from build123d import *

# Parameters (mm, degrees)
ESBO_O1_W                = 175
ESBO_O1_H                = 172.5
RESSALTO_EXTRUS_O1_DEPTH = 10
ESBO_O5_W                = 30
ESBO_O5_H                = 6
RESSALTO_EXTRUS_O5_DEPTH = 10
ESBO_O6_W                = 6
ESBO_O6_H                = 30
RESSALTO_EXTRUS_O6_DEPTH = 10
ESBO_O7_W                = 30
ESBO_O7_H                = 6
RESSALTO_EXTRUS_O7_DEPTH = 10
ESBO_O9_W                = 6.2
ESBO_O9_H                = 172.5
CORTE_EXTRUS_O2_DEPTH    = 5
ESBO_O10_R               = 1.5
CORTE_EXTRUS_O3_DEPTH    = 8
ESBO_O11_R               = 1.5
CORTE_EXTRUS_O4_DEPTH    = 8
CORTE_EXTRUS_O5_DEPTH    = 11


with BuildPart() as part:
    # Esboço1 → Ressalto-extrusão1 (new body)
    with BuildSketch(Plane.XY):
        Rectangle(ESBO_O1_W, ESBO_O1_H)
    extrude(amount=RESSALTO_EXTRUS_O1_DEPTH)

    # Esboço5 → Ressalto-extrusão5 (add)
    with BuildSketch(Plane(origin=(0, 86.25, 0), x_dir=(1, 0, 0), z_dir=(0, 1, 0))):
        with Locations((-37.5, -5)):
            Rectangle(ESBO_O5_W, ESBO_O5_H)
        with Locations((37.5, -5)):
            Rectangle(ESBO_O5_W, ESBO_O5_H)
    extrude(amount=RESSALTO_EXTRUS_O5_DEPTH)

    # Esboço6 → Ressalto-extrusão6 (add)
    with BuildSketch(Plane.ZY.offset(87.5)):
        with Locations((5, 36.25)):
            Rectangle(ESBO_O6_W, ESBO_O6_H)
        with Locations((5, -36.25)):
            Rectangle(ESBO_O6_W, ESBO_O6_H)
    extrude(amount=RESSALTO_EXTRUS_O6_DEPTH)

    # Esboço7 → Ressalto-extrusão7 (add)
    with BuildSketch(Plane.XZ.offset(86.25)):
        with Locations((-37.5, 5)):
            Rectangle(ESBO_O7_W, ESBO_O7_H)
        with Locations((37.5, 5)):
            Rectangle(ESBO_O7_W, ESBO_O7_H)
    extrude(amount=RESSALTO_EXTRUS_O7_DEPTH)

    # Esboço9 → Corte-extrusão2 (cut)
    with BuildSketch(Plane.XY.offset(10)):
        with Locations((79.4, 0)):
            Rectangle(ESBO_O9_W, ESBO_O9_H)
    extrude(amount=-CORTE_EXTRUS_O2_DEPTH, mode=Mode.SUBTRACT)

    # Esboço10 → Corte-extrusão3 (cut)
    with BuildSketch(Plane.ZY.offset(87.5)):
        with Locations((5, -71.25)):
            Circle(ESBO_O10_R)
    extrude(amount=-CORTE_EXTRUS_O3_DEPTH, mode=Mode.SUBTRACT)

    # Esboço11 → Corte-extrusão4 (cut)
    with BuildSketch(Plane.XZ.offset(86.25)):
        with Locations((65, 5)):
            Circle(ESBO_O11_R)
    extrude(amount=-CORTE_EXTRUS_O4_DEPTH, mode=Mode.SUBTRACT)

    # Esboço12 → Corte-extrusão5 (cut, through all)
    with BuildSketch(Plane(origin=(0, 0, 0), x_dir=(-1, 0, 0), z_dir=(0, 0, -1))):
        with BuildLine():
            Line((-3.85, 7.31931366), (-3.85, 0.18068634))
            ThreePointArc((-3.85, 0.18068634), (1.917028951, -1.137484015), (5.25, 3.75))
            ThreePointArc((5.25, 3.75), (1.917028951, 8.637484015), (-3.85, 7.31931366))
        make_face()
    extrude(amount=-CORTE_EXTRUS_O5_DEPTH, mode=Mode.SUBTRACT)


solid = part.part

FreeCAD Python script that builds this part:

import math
import FreeCAD as App
import Part
import Sketcher

V = App.Vector
Q = App.Units.Quantity


def add_polygon(sketch, points):
    """Adds a closed chain of lines whose ends are joined by coincident constraints."""
    first, n = sketch.GeometryCount, len(points)
    for a, b in zip(points, points[1:] + points[:1]):
        sketch.addGeometry(Part.LineSegment(App.Vector(*a, 0), App.Vector(*b, 0)), False)
    for i in range(n):
        sketch.addConstraint(Sketcher.Constraint("Coincident", first + i, 2, first + (i + 1) % n, 1))

doc = App.newDocument("Part")
params = doc.addObject("Spreadsheet::Sheet", "Params")
for row, (alias, value) in enumerate([
    ("sketch1_width", "175 mm"),
    ("sketch1_height", "172.5 mm"),
    ("pad1_length", "10 mm"),
    ("sketch2_width", "30 mm"),
    ("sketch2_height", "6 mm"),
    ("pad2_length", "10 mm"),
    ("sketch3_width", "30 mm"),
    ("sketch3_height", "6 mm"),
    ("pad3_length", "10 mm"),
    ("sketch4_width", "30 mm"),
    ("sketch4_height", "6 mm"),
    ("pad4_length", "10 mm"),
    ("sketch5_width", "6.2 mm"),
    ("sketch5_height", "172.5 mm"),
    ("pocket1_length", "5 mm"),
    ("sketch6_diameter", "3 mm"),
    ("pocket2_length", "8 mm"),
    ("sketch7_diameter", "3 mm"),
    ("pocket3_length", "8 mm"),
    ("sketch8_radius", "5.25 mm"),
], start=1):
    params.set(f"A{row}", alias)
    params.set(f"B{row}", "=" + value)
    params.setAlias(f"B{row}", alias)

body = doc.addObject("PartDesign::Body", "Body")

# Sketch on XY plane
sketch1 = body.newObject("Sketcher::SketchObject", "Sketch")
sketch1.AttachmentSupport = (doc.getObject("XY_Plane"), [""])
sketch1.MapMode = "FlatFace"
add_polygon(sketch1, [(-87.5, 86.25), (-87.5, -86.25), (87.5, -86.25), (87.5, 86.25)])  # lines 0-3
sketch1.addConstraint(Sketcher.Constraint("Vertical", 0))
sketch1.addConstraint(Sketcher.Constraint("Horizontal", 1))
sketch1.addConstraint(Sketcher.Constraint("Vertical", 2))
sketch1.addConstraint(Sketcher.Constraint("Horizontal", 3))
sketch1.addConstraint(Sketcher.Constraint("Symmetric", 0, 2, 2, 2, -1, 1))
sketch1.addConstraint(Sketcher.Constraint("DistanceX", 1, 1, 1, 2, Q("175 mm")))
sketch1.addConstraint(Sketcher.Constraint("DistanceY", 0, 2, 0, 1, Q("172.5 mm")))
sketch1.setExpression("Constraints[9]", "Params.sketch1_width")
sketch1.setExpression("Constraints[10]", "Params.sketch1_height")
pad1 = body.newObject("PartDesign::Pad", "Pad")
pad1.Profile = sketch1
pad1.setExpression("Length", "Params.pad1_length")

# Sketch on XZ plane
sketch2 = body.newObject("Sketcher::SketchObject", "Sketch001")
sketch2.AttachmentSupport = (doc.getObject("XZ_Plane"), [""])
sketch2.MapMode = "FlatFace"
sketch2.AttachmentOffset = App.Placement(V(0, 0, -86.25), App.Rotation())
add_polygon(sketch2, [(-52.5, 2), (-52.5, 8), (-22.5, 8), (-22.5, 2)])  # lines 0-3
add_polygon(sketch2, [(22.5, 2), (22.5, 8), (52.5, 8), (52.5, 2)])  # lines 4-7
sketch2.addConstraint(Sketcher.Constraint("Vertical", 0))
sketch2.addConstraint(Sketcher.Constraint("Horizontal", 1))
sketch2.addConstraint(Sketcher.Constraint("Vertical", 2))
sketch2.addConstraint(Sketcher.Constraint("Horizontal", 3))
sketch2.addConstraint(Sketcher.Constraint("Vertical", 4))
sketch2.addConstraint(Sketcher.Constraint("Horizontal", 5))
sketch2.addConstraint(Sketcher.Constraint("Vertical", 6))
sketch2.addConstraint(Sketcher.Constraint("Horizontal", 7))
sketch2.addConstraint(Sketcher.Constraint("Symmetric", 1, 2, 4, 2, -2))
sketch2.addConstraint(Sketcher.Constraint("Symmetric", 3, 2, 6, 2, -2))
sketch2.addConstraint(Sketcher.Constraint("DistanceX", 1, 1, 1, 2, Q("30 mm")))
sketch2.addConstraint(Sketcher.Constraint("DistanceY", 0, 1, 0, 2, Q("6 mm")))
sketch2.addConstraint(Sketcher.Constraint("DistanceY", -1, 1, 0, 2, Q("8 mm")))
sketch2.addConstraint(Sketcher.Constraint("DistanceX", 1, 2, 4, 2, Q("45 mm")))
sketch2.setExpression("Constraints[18]", "Params.sketch2_width")
sketch2.setExpression("Constraints[19]", "Params.sketch2_height")
pad2 = body.newObject("PartDesign::Pad", "Pad001")
pad2.Profile = sketch2
pad2.setExpression("Length", "Params.pad2_length")
pad2.Reversed = True

# Sketch on YZ plane
sketch3 = body.newObject("Sketcher::SketchObject", "Sketch002")
sketch3.AttachmentSupport = (doc.getObject("YZ_Plane"), [""])
sketch3.MapMode = "FlatFace"
sketch3.AttachmentOffset = App.Placement(V(0, 0, -87.5), App.Rotation())
add_polygon(sketch3, [(51.25, 2), (21.25, 2), (21.25, 8), (51.25, 8)])  # lines 0-3
add_polygon(sketch3, [(-21.25, 2), (-51.25, 2), (-51.25, 8), (-21.25, 8)])  # lines 4-7
sketch3.addConstraint(Sketcher.Constraint("Horizontal", 0))
sketch3.addConstraint(Sketcher.Constraint("Vertical", 1))
sketch3.addConstraint(Sketcher.Constraint("Horizontal", 2))
sketch3.addConstraint(Sketcher.Constraint("Vertical", 3))
sketch3.addConstraint(Sketcher.Constraint("Horizontal", 4))
sketch3.addConstraint(Sketcher.Constraint("Vertical", 5))
sketch3.addConstraint(Sketcher.Constraint("Horizontal", 6))
sketch3.addConstraint(Sketcher.Constraint("Vertical", 7))
sketch3.addConstraint(Sketcher.Constraint("Symmetric", 3, 2, 4, 2, -2))
sketch3.addConstraint(Sketcher.Constraint("Symmetric", 1, 2, 6, 2, -2))
sketch3.addConstraint(Sketcher.Constraint("DistanceX", 0, 2, 0, 1, Q("30 mm")))
sketch3.addConstraint(Sketcher.Constraint("DistanceY", 1, 1, 1, 2, Q("6 mm")))
sketch3.addConstraint(Sketcher.Constraint("DistanceY", -1, 1, 0, 2, Q("2 mm")))
sketch3.addConstraint(Sketcher.Constraint("DistanceX", 4, 2, 0, 2, Q("72.5 mm")))
sketch3.setExpression("Constraints[18]", "Params.sketch3_width")
sketch3.setExpression("Constraints[19]", "Params.sketch3_height")
pad3 = body.newObject("PartDesign::Pad", "Pad002")
pad3.Profile = sketch3
pad3.setExpression("Length", "Params.pad3_length")
pad3.Reversed = True

# Sketch on XZ plane
sketch4 = body.newObject("Sketcher::SketchObject", "Sketch003")
sketch4.AttachmentSupport = (doc.getObject("XZ_Plane"), [""])
sketch4.MapMode = "FlatFace"
sketch4.AttachmentOffset = App.Placement(V(0, 0, 86.25), App.Rotation())
add_polygon(sketch4, [(-52.5, 8), (-52.5, 2), (-22.5, 2), (-22.5, 8)])  # lines 0-3
add_polygon(sketch4, [(22.5, 8), (22.5, 2), (52.5, 2), (52.5, 8)])  # lines 4-7
sketch4.addConstraint(Sketcher.Constraint("Vertical", 0))
sketch4.addConstraint(Sketcher.Constraint("Horizontal", 1))
sketch4.addConstraint(Sketcher.Constraint("Vertical", 2))
sketch4.addConstraint(Sketcher.Constraint("Horizontal", 3))
sketch4.addConstraint(Sketcher.Constraint("Vertical", 4))
sketch4.addConstraint(Sketcher.Constraint("Horizontal", 5))
sketch4.addConstraint(Sketcher.Constraint("Vertical", 6))
sketch4.addConstraint(Sketcher.Constraint("Horizontal", 7))
sketch4.addConstraint(Sketcher.Constraint("Symmetric", 1, 2, 4, 2, -2))
sketch4.addConstraint(Sketcher.Constraint("Symmetric", 3, 2, 6, 2, -2))
sketch4.addConstraint(Sketcher.Constraint("DistanceX", 1, 1, 1, 2, Q("30 mm")))
sketch4.addConstraint(Sketcher.Constraint("DistanceY", 0, 2, 0, 1, Q("6 mm")))
sketch4.addConstraint(Sketcher.Constraint("DistanceY", -1, 1, 0, 2, Q("2 mm")))
sketch4.addConstraint(Sketcher.Constraint("DistanceX", 1, 2, 4, 2, Q("45 mm")))
sketch4.setExpression("Constraints[18]", "Params.sketch4_width")
sketch4.setExpression("Constraints[19]", "Params.sketch4_height")
pad4 = body.newObject("PartDesign::Pad", "Pad003")
pad4.Profile = sketch4
pad4.setExpression("Length", "Params.pad4_length")

# Sketch on XY plane
sketch5 = body.newObject("Sketcher::SketchObject", "Sketch004")
sketch5.AttachmentSupport = (doc.getObject("XY_Plane"), [""])
sketch5.MapMode = "FlatFace"
sketch5.AttachmentOffset = App.Placement(V(0, 0, 10), App.Rotation())
add_polygon(sketch5, [(76.3, 86.25), (76.3, -86.25), (82.5, -86.25), (82.5, 86.25)])  # lines 0-3
sketch5.addConstraint(Sketcher.Constraint("Vertical", 0))
sketch5.addConstraint(Sketcher.Constraint("Horizontal", 1))
sketch5.addConstraint(Sketcher.Constraint("Vertical", 2))
sketch5.addConstraint(Sketcher.Constraint("Horizontal", 3))
sketch5.addConstraint(Sketcher.Constraint("DistanceX", 1, 1, 1, 2, Q("6.2 mm")))
sketch5.addConstraint(Sketcher.Constraint("DistanceY", 0, 2, 0, 1, Q("172.5 mm")))
sketch5.addConstraint(Sketcher.Constraint("DistanceX", -1, 1, 0, 2, Q("76.3 mm")))
sketch5.addConstraint(Sketcher.Constraint("DistanceY", 0, 2, -1, 1, Q("86.25 mm")))
sketch5.setExpression("Constraints[8]", "Params.sketch5_width")
sketch5.setExpression("Constraints[9]", "Params.sketch5_height")
pocket1 = body.newObject("PartDesign::Pocket", "Pocket")
pocket1.Profile = sketch5
pocket1.setExpression("Length", "Params.pocket1_length")

# Sketch on YZ plane
sketch6 = body.newObject("Sketcher::SketchObject", "Sketch005")
sketch6.AttachmentSupport = (doc.getObject("YZ_Plane"), [""])
sketch6.MapMode = "FlatFace"
sketch6.AttachmentOffset = App.Placement(V(0, 0, -87.5), App.Rotation())
sketch6.addGeometry(Part.Circle(V(-71.25, 5, 0), V(0, 0, 1), 1.5), False)
sketch6.addConstraint(Sketcher.Constraint("Diameter", 0, Q("3 mm")))
sketch6.addConstraint(Sketcher.Constraint("DistanceY", -1, 1, 0, 3, Q("5 mm")))
sketch6.addConstraint(Sketcher.Constraint("DistanceX", 0, 3, -1, 1, Q("71.25 mm")))
sketch6.setExpression("Constraints[0]", "Params.sketch6_diameter")
pocket2 = body.newObject("PartDesign::Pocket", "Pocket001")
pocket2.Profile = sketch6
pocket2.setExpression("Length", "Params.pocket2_length")
pocket2.Reversed = True

# Sketch on XZ plane
sketch7 = body.newObject("Sketcher::SketchObject", "Sketch006")
sketch7.AttachmentSupport = (doc.getObject("XZ_Plane"), [""])
sketch7.MapMode = "FlatFace"
sketch7.AttachmentOffset = App.Placement(V(0, 0, 86.25), App.Rotation())
sketch7.addGeometry(Part.Circle(V(65, 5, 0), V(0, 0, 1), 1.5), False)
sketch7.addConstraint(Sketcher.Constraint("Diameter", 0, Q("3 mm")))
sketch7.addConstraint(Sketcher.Constraint("DistanceX", -1, 1, 0, 3, Q("65 mm")))
sketch7.addConstraint(Sketcher.Constraint("DistanceY", -1, 1, 0, 3, Q("5 mm")))
sketch7.setExpression("Constraints[0]", "Params.sketch7_diameter")
pocket3 = body.newObject("PartDesign::Pocket", "Pocket002")
pocket3.Profile = sketch7
pocket3.setExpression("Length", "Params.pocket3_length")

# Sketch on XY plane
sketch8 = body.newObject("Sketcher::SketchObject", "Sketch007")
sketch8.AttachmentSupport = (doc.getObject("XY_Plane"), [""])
sketch8.MapMode = "FlatFace"
sketch8.addGeometry(Part.LineSegment(V(3.85, 7.319314, 0), V(3.85, 0.180686, 0)), False)
sketch8.addGeometry(Part.ArcOfCircle(Part.Circle(V(0, 3.75, 0), V(0, 0, 1), 5.25), math.radians(-180), math.radians(-42.833428)), False)
sketch8.addGeometry(Part.ArcOfCircle(Part.Circle(V(0, 3.75, 0), V(0, 0, 1), 5.25), math.radians(42.833428), math.radians(180)), False)
sketch8.addConstraint(Sketcher.Constraint("Coincident", 0, 2, 1, 2))
sketch8.addConstraint(Sketcher.Constraint("Tangent", 1, 1, 2, 2))
sketch8.addConstraint(Sketcher.Constraint("Coincident", 2, 1, 0, 1))
sketch8.addConstraint(Sketcher.Constraint("Vertical", 0))
sketch8.addConstraint(Sketcher.Constraint("Equal", 1, 2))
sketch8.addConstraint(Sketcher.Constraint("PointOnObject", 1, 3, -2))
sketch8.addConstraint(Sketcher.Constraint("Horizontal", 2, 3, 1, 1))
sketch8.addConstraint(Sketcher.Constraint("Radius", 1, Q("5.25 mm")))
sketch8.addConstraint(Sketcher.Constraint("DistanceX", 1, 1, 0, 2, Q("9.1 mm")))
sketch8.addConstraint(Sketcher.Constraint("DistanceY", -1, 1, 1, 3, Q("3.75 mm")))
sketch8.setExpression("Constraints[7]", "Params.sketch8_radius")
pocket4 = body.newObject("PartDesign::Pocket", "Pocket003")
pocket4.Profile = sketch8
pocket4.Type = "ThroughAll"
pocket4.Reversed = True

doc.recompute()
